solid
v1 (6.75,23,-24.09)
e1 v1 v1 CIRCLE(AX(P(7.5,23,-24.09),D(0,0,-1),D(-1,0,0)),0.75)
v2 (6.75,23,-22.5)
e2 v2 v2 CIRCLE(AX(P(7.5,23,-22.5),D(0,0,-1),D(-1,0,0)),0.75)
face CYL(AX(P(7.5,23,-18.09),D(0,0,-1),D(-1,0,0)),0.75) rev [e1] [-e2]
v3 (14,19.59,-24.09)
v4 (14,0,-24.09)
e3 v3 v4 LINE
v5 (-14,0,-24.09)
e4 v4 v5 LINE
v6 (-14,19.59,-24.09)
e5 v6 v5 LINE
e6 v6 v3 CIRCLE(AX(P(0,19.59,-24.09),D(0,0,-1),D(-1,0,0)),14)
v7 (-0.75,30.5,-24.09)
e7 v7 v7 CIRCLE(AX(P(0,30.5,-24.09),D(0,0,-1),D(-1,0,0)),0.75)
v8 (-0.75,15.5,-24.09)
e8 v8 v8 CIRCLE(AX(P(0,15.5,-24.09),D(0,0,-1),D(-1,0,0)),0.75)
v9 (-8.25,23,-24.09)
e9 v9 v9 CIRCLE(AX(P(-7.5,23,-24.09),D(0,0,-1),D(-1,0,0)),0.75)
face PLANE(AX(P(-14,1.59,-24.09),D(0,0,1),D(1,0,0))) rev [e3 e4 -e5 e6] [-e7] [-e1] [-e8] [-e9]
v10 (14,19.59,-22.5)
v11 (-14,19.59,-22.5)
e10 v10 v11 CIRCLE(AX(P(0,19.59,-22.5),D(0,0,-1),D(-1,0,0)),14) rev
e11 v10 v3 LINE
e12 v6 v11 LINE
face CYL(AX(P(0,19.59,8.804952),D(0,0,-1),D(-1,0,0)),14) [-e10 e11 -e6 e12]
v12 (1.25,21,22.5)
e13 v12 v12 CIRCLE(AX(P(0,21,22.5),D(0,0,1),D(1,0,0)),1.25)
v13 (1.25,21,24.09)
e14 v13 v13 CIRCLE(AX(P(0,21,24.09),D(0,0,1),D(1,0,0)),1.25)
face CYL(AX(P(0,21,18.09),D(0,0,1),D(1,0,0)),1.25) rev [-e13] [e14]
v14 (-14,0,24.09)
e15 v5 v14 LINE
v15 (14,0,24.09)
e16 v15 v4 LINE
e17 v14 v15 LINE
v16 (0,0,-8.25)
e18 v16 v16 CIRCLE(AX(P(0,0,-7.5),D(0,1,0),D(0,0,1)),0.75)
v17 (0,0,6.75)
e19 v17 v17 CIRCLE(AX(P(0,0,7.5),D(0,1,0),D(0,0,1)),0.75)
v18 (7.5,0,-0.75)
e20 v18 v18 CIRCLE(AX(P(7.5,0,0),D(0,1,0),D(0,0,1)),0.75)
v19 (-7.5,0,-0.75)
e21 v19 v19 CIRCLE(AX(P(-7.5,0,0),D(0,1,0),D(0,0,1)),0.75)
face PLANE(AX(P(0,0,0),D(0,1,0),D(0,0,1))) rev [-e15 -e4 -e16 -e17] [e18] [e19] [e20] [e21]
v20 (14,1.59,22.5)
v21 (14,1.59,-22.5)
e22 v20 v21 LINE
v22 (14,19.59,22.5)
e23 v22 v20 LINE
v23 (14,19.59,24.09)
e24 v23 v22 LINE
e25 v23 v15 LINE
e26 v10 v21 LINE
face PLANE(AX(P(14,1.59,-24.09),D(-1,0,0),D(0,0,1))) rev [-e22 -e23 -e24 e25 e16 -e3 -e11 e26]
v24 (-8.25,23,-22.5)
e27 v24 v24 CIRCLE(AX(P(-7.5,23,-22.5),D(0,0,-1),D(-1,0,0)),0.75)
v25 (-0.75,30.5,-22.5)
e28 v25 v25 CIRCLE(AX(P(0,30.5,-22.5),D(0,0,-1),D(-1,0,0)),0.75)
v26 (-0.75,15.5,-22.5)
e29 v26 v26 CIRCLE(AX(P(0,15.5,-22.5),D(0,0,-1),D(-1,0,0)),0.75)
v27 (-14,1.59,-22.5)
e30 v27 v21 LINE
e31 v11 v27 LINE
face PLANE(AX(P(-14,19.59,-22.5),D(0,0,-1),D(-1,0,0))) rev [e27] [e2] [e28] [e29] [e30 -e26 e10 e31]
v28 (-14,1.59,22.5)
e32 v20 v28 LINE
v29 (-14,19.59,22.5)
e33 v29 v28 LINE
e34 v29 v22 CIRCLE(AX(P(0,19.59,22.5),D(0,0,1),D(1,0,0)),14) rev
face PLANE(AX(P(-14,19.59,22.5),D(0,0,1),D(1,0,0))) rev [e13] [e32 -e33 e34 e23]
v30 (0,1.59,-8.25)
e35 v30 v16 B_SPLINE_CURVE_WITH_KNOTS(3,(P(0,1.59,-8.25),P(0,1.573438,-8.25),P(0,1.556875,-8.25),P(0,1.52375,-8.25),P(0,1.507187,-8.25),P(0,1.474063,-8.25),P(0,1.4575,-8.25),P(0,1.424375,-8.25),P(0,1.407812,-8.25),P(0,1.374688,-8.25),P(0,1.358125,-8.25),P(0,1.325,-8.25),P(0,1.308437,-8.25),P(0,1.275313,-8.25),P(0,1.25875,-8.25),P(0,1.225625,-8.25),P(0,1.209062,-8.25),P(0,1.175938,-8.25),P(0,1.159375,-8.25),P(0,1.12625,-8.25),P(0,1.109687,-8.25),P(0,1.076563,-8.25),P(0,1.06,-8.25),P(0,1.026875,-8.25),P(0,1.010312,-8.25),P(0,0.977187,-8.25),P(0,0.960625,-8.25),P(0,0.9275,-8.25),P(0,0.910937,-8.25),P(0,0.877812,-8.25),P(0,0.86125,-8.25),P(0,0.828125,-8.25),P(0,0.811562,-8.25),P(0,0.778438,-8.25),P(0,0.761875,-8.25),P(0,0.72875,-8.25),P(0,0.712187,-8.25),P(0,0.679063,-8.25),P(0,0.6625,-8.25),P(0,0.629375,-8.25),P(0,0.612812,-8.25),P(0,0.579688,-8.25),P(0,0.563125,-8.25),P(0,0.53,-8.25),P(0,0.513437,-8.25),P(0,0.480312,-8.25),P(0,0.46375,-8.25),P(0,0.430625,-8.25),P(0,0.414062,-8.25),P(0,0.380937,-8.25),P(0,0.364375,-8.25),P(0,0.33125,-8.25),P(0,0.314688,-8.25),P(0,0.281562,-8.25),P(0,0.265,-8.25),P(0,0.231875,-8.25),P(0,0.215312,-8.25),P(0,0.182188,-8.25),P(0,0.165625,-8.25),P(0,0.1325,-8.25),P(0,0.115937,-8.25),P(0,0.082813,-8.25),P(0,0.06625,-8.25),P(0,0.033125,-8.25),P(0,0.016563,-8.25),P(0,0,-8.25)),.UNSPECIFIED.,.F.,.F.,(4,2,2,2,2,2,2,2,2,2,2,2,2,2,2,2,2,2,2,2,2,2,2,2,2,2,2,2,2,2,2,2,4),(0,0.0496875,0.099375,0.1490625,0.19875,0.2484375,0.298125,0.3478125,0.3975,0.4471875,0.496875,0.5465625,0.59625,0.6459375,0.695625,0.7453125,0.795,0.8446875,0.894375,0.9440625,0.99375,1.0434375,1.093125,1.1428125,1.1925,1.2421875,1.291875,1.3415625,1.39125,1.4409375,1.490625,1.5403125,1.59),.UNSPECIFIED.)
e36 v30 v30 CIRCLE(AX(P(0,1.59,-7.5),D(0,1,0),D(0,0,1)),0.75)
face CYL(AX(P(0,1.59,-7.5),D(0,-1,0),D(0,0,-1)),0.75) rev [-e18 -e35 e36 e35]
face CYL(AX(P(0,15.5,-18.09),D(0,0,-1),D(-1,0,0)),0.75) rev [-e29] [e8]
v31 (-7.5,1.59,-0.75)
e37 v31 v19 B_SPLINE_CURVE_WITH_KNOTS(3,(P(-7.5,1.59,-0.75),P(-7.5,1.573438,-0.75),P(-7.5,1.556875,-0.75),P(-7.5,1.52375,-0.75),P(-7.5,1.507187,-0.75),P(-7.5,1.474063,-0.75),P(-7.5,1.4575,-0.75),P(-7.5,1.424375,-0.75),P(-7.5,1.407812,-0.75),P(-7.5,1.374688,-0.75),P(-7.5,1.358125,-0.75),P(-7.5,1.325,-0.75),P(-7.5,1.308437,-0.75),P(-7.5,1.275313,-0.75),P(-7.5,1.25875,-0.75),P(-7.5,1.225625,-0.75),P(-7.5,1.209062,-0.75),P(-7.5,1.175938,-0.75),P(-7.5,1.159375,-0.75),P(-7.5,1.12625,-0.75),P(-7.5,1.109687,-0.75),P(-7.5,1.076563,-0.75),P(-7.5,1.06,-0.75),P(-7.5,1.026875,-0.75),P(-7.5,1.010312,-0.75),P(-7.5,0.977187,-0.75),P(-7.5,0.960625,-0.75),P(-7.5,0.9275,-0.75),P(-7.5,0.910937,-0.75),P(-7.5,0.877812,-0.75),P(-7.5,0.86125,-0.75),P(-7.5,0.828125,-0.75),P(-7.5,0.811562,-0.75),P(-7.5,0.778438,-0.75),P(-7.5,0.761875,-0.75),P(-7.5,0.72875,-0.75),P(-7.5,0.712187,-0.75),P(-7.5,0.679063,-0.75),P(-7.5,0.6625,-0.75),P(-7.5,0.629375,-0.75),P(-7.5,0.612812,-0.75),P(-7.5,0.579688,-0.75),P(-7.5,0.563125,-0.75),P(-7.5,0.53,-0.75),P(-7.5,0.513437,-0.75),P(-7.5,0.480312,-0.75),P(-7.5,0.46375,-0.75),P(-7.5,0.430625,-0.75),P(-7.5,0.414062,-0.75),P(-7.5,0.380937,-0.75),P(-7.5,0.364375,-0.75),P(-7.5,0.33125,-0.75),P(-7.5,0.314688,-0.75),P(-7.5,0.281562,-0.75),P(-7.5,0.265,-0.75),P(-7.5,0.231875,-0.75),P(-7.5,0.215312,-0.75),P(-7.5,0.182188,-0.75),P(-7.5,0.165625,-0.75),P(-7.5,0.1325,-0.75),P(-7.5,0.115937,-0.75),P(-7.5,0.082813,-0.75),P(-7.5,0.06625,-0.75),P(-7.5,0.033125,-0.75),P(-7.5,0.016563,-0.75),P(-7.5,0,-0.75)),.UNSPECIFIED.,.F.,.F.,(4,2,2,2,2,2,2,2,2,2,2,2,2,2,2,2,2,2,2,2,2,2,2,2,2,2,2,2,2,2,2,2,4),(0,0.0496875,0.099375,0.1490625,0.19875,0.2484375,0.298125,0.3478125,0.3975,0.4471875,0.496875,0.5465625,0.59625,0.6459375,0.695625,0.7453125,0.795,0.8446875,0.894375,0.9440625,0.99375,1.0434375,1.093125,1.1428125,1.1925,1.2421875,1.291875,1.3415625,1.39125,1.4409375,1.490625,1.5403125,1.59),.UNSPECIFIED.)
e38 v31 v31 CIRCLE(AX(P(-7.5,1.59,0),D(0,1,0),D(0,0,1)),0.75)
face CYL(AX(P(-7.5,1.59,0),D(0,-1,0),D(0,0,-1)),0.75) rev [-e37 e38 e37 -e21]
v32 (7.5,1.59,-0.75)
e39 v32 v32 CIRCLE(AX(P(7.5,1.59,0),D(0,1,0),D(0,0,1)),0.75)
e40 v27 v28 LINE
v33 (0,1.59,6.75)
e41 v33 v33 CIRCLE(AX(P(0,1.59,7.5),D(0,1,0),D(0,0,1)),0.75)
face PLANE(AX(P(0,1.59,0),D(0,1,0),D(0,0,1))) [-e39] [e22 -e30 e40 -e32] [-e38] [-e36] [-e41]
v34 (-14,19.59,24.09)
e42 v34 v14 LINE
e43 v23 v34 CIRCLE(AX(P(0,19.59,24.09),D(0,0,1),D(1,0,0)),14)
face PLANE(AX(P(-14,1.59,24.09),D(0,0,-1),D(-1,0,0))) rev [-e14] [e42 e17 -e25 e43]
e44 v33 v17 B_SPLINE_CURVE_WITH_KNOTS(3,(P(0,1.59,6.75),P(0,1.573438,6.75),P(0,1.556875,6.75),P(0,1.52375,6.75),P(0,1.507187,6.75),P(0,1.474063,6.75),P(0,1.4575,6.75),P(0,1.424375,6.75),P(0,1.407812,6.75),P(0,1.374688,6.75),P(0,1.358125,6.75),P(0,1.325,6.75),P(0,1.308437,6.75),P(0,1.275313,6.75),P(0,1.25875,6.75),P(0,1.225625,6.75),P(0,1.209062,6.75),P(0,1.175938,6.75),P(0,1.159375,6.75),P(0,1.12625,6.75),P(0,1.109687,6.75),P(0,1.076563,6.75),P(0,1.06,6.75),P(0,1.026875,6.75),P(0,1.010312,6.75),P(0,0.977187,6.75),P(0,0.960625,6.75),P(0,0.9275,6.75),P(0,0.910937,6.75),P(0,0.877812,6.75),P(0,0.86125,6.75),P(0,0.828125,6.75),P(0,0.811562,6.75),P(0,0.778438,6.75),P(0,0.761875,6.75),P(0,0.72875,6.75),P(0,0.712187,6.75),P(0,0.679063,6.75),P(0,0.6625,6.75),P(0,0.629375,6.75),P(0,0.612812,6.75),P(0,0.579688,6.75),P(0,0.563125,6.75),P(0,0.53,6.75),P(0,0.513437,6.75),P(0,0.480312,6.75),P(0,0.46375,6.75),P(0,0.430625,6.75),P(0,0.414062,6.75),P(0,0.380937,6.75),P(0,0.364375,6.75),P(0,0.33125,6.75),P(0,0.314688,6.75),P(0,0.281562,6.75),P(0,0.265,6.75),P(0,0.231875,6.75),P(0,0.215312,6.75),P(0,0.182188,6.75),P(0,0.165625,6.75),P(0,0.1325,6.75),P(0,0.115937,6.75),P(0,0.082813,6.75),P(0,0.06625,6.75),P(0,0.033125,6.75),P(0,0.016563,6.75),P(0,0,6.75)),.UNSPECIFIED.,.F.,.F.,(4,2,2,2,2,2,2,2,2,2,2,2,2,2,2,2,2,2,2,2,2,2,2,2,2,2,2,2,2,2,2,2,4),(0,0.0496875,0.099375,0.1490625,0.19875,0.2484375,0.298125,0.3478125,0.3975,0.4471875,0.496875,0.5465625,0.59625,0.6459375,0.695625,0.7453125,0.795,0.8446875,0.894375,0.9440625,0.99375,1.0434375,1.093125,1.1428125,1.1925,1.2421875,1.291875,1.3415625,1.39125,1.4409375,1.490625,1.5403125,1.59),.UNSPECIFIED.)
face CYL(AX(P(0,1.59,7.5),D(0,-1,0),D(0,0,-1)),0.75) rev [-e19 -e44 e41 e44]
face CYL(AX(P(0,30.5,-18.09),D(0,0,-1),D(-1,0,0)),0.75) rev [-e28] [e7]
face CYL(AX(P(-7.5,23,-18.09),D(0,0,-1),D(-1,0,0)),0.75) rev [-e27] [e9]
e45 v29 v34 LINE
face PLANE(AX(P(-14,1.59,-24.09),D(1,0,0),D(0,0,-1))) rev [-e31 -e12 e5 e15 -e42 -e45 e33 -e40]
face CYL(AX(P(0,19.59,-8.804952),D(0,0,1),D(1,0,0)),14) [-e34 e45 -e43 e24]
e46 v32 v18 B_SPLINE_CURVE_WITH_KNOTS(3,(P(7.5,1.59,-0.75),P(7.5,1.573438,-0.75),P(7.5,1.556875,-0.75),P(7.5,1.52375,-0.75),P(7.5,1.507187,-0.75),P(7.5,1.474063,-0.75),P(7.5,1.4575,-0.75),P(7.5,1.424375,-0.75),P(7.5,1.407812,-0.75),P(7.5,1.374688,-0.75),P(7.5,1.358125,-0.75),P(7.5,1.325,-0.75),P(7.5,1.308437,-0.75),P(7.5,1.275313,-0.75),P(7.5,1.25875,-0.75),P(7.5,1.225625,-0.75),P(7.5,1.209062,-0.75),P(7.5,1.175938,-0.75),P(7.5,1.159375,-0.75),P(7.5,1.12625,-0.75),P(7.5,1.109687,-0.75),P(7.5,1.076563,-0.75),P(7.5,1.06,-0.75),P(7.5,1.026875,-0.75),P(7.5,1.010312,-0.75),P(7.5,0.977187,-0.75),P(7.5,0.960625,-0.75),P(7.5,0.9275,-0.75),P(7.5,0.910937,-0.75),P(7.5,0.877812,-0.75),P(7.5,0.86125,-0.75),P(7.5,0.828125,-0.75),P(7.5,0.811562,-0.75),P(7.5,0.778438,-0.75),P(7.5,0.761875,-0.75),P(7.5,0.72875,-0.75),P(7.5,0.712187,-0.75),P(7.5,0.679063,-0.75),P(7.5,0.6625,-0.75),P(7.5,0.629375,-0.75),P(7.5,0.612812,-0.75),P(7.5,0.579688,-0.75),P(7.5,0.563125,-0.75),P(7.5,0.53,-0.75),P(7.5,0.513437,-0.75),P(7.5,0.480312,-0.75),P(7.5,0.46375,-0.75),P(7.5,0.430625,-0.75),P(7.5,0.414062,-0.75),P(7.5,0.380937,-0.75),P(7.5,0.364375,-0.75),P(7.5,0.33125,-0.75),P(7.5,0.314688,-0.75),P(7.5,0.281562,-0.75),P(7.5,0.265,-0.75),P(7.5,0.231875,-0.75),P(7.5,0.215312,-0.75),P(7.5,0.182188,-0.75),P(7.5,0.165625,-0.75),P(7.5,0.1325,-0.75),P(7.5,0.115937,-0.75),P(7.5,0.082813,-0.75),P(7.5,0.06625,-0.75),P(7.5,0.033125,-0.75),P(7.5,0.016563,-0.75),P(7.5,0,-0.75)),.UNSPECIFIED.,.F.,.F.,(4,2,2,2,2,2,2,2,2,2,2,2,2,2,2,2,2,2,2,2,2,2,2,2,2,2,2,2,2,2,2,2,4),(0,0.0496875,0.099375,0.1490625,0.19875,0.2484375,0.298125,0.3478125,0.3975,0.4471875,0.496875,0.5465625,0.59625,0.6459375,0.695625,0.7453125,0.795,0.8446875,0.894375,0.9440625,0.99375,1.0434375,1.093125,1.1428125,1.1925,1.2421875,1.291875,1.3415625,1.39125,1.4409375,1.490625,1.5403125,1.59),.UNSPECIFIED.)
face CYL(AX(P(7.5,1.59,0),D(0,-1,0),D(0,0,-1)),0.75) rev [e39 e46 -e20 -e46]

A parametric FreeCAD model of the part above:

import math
import FreeCAD as App
import Part
import Sketcher
Q = App.Units.Quantity


def add_polygon(sketch, points):
    """Adds a closed chain of lines whose ends are joined by coincident constraints."""
    first, n = sketch.GeometryCount, len(points)
    for a, b in zip(points, points[1:] + points[:1]):
        sketch.addGeometry(Part.LineSegment(App.Vector(*a, 0), App.Vector(*b, 0)), False)
    for i in range(n):
        sketch.addConstraint(Sketcher.Constraint("Coincident", first + i, 2, first + (i + 1) % n, 1))

doc = App.newDocument("Part")
params = doc.addObject("Spreadsheet::Sheet", "Params")
for row, (alias, value) in enumerate([
    ("sketch1_diameter", "1.5 mm"),
    ("sketch1_width", "28 mm"),
    ("sketch1_height", "48.18 mm"),
    ("pad1_length", "1.59 mm"),
    ("sketch2_width", "28 mm"),
    ("sketch2_height", "1.59 mm"),
    ("pad2_length", "18 mm"),
    ("sketch3_radius", "14 mm"),
    ("pad3_length", "1.59 mm"),
    ("sketch4_radius", "14 mm"),
    ("pad4_length", "1.59 mm"),
    ("sketch5_diameter", "2.5 mm"),
    ("pocket1_length", "6 mm"),
    ("sketch6_diameter", "1.5 mm"),
    ("pocket2_length", "6 mm"),
], start=1):
    params.set(f"A{row}", alias)
    params.set(f"B{row}", "=" + value)
    params.setAlias(f"B{row}", alias)

body = doc.addObject("PartDesign::Body", "Body")

# Sketch on XZ plane
sketch1 = doc.addObject("Sketcher::SketchObject", "Sketch")
body.addObject(sketch1)
sketch1.AttachmentSupport = (doc.XZ_Plane, [""])
sketch1.MapMode = "FlatFace"
add_polygon(sketch1, [(-14, -24.09), (-14, 24.09), (14, 24.09), (14, -24.09)])  # lines 0-3
sketch1.addGeometry(Part.Circle(App.Vector(0, 7.5, 0), App.Vector(0, 0, 1), 0.75), False)  # 4
sketch1.addGeometry(Part.Circle(App.Vector(-7.5, 0, 0), App.Vector(0, 0, 1), 0.75), False)  # 5
sketch1.addGeometry(Part.Circle(App.Vector(7.5, 0, 0), App.Vector(0, 0, 1), 0.75), False)  # 6
sketch1.addGeometry(Part.Circle(App.Vector(0, -7.5, 0), App.Vector(0, 0, 1), 0.75), False)  # 7
sketch1.addConstraint([
    Sketcher.Constraint("Vertical", 0),
    Sketcher.Constraint("Horizontal", 1),
    Sketcher.Constraint("Vertical", 2),
    Sketcher.Constraint("Horizontal", 3),
    Sketcher.Constraint("Equal", 4, 5),
    Sketcher.Constraint("Equal", 5, 6),
    Sketcher.Constraint("Equal", 6, 7),
    Sketcher.Constraint("Symmetric", 5, 3, 6, 3, -1, 1),
    Sketcher.Constraint("Symmetric", 4, 3, 7, 3, -1, 1),
    Sketcher.Constraint("Symmetric", 0, 2, 2, 2, -1, 1),
    Sketcher.Constraint("PointOnObject", 4, 3, -2),
    Sketcher.Constraint("PointOnObject", 5, 3, -1),
    Sketcher.Constraint("Diameter", 4, Q("1.5 mm")),
    Sketcher.Constraint("DistanceX", 1, 1, 1, 2, Q("28 mm")),
    Sketcher.Constraint("DistanceX", 5, 3, 6, 3, Q("15 mm")),
    Sketcher.Constraint("DistanceY", 7, 3, 4, 3, Q("15 mm")),
    Sketcher.Constraint("DistanceY", 0, 1, 0, 2, Q("48.18 mm")),
])
sketch1.setExpression("Constraints[16]", "Params.sketch1_diameter")
sketch1.setExpression("Constraints[17]", "Params.sketch1_width")
sketch1.setExpression("Constraints[20]", "Params.sketch1_height")
pad1 = doc.addObject("PartDesign::Pad", "Pad")
body.addObject(pad1)
pad1.Profile = sketch1
pad1.setExpression("Length", "Params.pad1_length")
pad1.Reversed = True

# Sketch on XZ plane
sketch2 = doc.addObject("Sketcher::SketchObject", "Sketch001")
body.addObject(sketch2)
sketch2.AttachmentSupport = (doc.XZ_Plane, [""])
sketch2.MapMode = "FlatFace"
sketch2.AttachmentOffset = App.Placement(App.Vector(0, 0, -1.59), App.Rotation())
add_polygon(sketch2, [(-14, -24.09), (-14, -22.5), (14, -22.5), (14, -24.09)])  # lines 0-3
add_polygon(sketch2, [(-14, 22.5), (-14, 24.09), (14, 24.09), (14, 22.5)])  # lines 4-7
sketch2.addConstraint([
    Sketcher.Constraint("Vertical", 0),
    Sketcher.Constraint("Horizontal", 1),
    Sketcher.Constraint("Vertical", 2),
    Sketcher.Constraint("Horizontal", 3),
    Sketcher.Constraint("Vertical", 4),
    Sketcher.Constraint("Horizontal", 5),
    Sketcher.Constraint("Vertical", 6),
    Sketcher.Constraint("Horizontal", 7),
    Sketcher.Constraint("Symmetric", 2, 2, 4, 2, -1, 1),
    Sketcher.Constraint("Symmetric", 0, 2, 6, 2, -1, 1),
    Sketcher.Constraint("Vertical", 3, 2, 4, 2),
    Sketcher.Constraint("DistanceX", 1, 1, 1, 2, Q("28 mm")),
    Sketcher.Constraint("DistanceY", 1, 2, 6, 2, Q("45 mm")),
    Sketcher.Constraint("DistanceY", 0, 1, 0, 2, Q("1.59 mm")),
])
sketch2.setExpression("Constraints[19]", "Params.sketch2_width")
sketch2.setExpression("Constraints[21]", "Params.sketch2_height")
pad2 = doc.addObject("PartDesign::Pad", "Pad001")
body.addObject(pad2)
pad2.Profile = sketch2
pad2.setExpression("Length", "Params.pad2_length")
pad2.Reversed = True

# Sketch on XY plane
sketch3 = doc.addObject("Sketcher::SketchObject", "Sketch002")
body.addObject(sketch3)
sketch3.AttachmentSupport = (doc.XY_Plane, [""])
sketch3.MapMode = "FlatFace"
sketch3.AttachmentOffset = App.Placement(App.Vector(0, 0, 24.09), App.Rotation())
sketch3.addGeometry([
    Part.LineSegment(App.Vector(-14, 19.59, 0), App.Vector(14, 19.59, 0)),
    Part.ArcOfCircle(Part.Circle(App.Vector(0, 19.59, 0), App.Vector(0, 0, 1), 14), math.radians(0), math.radians(180)),
], False)
sketch3.addConstraint([
    Sketcher.Constraint("Coincident", 0, 1, 1, 2),
    Sketcher.Constraint("Coincident", 1, 1, 0, 2),
    Sketcher.Constraint("Horizontal", 0),
    Sketcher.Constraint("PointOnObject", 1, 3, -2),
    Sketcher.Constraint("Horizontal", 1, 3, 0, 1),
    Sketcher.Constraint("Radius", 1, Q("14 mm")),
    Sketcher.Constraint("DistanceY", -1, 1, 1, 3, Q("19.59 mm")),
])
sketch3.setExpression("Constraints[5]", "Params.sketch3_radius")
pad3 = doc.addObject("PartDesign::Pad", "Pad002")
body.addObject(pad3)
pad3.Profile = sketch3
pad3.setExpression("Length", "Params.pad3_length")
pad3.Reversed = True

# Sketch on XY plane
sketch4 = doc.addObject("Sketcher::SketchObject", "Sketch003")
body.addObject(sketch4)
sketch4.AttachmentSupport = (doc.XY_Plane, [""])
sketch4.MapMode = "FlatFace"
sketch4.AttachmentOffset = App.Placement(App.Vector(0, 0, -22.5), App.Rotation())
sketch4.addGeometry([
    Part.LineSegment(App.Vector(14, 19.59, 0), App.Vector(-14, 19.59, 0)),
    Part.ArcOfCircle(Part.Circle(App.Vector(0, 19.59, 0), App.Vector(0, 0, 1), 14), math.radians(0), math.radians(180)),
], False)
sketch4.addConstraint([
    Sketcher.Constraint("Coincident", 0, 1, 1, 1),
    Sketcher.Constraint("Coincident", 1, 2, 0, 2),
    Sketcher.Constraint("Horizontal", 0),
    Sketcher.Constraint("PointOnObject", 1, 3, -2),
    Sketcher.Constraint("Horizontal", 1, 3, 0, 1),
    Sketcher.Constraint("Radius", 1, Q("14 mm")),
    Sketcher.Constraint("DistanceY", -1, 1, 1, 3, Q("19.59 mm")),
])
sketch4.setExpression("Constraints[5]", "Params.sketch4_radius")
pad4 = doc.addObject("PartDesign::Pad", "Pad003")
body.addObject(pad4)
pad4.Profile = sketch4
pad4.setExpression("Length", "Params.pad4_length")
pad4.Reversed = True

# Sketch on XY plane
sketch5 = doc.addObject("Sketcher::SketchObject", "Sketch004")
body.addObject(sketch5)
sketch5.AttachmentSupport = (doc.XY_Plane, [""])
sketch5.MapMode = "FlatFace"
sketch5.AttachmentOffset = App.Placement(App.Vector(0, 0, 24.09), App.Rotation())
sketch5.addGeometry(Part.Circle(App.Vector(0, 21, 0), App.Vector(0, 0, 1), 1.25), False)
sketch5.addConstraint([
    Sketcher.Constraint("PointOnObject", 0, 3, -2),
    Sketcher.Constraint("Diameter", 0, Q("2.5 mm")),
    Sketcher.Constraint("DistanceY", -1, 1, 0, 3, Q("21 mm")),
])
sketch5.setExpression("Constraints[1]", "Params.sketch5_diameter")
pocket1 = doc.addObject("PartDesign::Pocket", "Pocket")
body.addObject(pocket1)
pocket1.Profile = sketch5
pocket1.setExpression("Length", "Params.pocket1_length")

# Sketch on XY plane
sketch6 = doc.addObject("Sketcher::SketchObject", "Sketch005")
body.addObject(sketch6)
sketch6.AttachmentSupport = (doc.XY_Plane, [""])
sketch6.MapMode = "FlatFace"
sketch6.AttachmentOffset = App.Placement(App.Vector(0, 0, -24.09), App.Rotation())
sketch6.addGeometry([
    Part.Circle(App.Vector(0, 30.5, 0), App.Vector(0, 0, 1), 0.75),
    Part.Circle(App.Vector(0, 15.5, 0), App.Vector(0, 0, 1), 0.75),
    Part.Circle(App.Vector(-7.5, 23, 0), App.Vector(0, 0, 1), 0.75),
    Part.Circle(App.Vector(7.5, 23, 0), App.Vector(0, 0, 1), 0.75),
], False)
sketch6.addConstraint([
    Sketcher.Constraint("Equal", 0, 1),
    Sketcher.Constraint("Equal", 1, 2),
    Sketcher.Constraint("Equal", 2, 3),
    Sketcher.Constraint("Symmetric", 2, 3, 3, 3, -2),
    Sketcher.Constraint("PointOnObject", 0, 3, -2),
    Sketcher.Constraint("PointOnObject", 1, 3, -2),
    Sketcher.Constraint("Diameter", 0, Q("1.5 mm")),
    Sketcher.Constraint("DistanceY", -1, 1, 2, 3, Q("23 mm")),
    Sketcher.Constraint("DistanceY", 1, 3, 0, 3, Q("15 mm")),
    Sketcher.Constraint("DistanceX", 2, 3, 3, 3, Q("15 mm")),
    Sketcher.Constraint("DistanceY", -1, 1, 0, 3, Q("30.5 mm")),
])
sketch6.setExpression("Constraints[6]", "Params.sketch6_diameter")
pocket2 = doc.addObject("PartDesign::Pocket", "Pocket001")
body.addObject(pocket2)
pocket2.Profile = sketch6
pocket2.setExpression("Length", "Params.pocket2_length")
pocket2.Reversed = True

doc.recompute()
